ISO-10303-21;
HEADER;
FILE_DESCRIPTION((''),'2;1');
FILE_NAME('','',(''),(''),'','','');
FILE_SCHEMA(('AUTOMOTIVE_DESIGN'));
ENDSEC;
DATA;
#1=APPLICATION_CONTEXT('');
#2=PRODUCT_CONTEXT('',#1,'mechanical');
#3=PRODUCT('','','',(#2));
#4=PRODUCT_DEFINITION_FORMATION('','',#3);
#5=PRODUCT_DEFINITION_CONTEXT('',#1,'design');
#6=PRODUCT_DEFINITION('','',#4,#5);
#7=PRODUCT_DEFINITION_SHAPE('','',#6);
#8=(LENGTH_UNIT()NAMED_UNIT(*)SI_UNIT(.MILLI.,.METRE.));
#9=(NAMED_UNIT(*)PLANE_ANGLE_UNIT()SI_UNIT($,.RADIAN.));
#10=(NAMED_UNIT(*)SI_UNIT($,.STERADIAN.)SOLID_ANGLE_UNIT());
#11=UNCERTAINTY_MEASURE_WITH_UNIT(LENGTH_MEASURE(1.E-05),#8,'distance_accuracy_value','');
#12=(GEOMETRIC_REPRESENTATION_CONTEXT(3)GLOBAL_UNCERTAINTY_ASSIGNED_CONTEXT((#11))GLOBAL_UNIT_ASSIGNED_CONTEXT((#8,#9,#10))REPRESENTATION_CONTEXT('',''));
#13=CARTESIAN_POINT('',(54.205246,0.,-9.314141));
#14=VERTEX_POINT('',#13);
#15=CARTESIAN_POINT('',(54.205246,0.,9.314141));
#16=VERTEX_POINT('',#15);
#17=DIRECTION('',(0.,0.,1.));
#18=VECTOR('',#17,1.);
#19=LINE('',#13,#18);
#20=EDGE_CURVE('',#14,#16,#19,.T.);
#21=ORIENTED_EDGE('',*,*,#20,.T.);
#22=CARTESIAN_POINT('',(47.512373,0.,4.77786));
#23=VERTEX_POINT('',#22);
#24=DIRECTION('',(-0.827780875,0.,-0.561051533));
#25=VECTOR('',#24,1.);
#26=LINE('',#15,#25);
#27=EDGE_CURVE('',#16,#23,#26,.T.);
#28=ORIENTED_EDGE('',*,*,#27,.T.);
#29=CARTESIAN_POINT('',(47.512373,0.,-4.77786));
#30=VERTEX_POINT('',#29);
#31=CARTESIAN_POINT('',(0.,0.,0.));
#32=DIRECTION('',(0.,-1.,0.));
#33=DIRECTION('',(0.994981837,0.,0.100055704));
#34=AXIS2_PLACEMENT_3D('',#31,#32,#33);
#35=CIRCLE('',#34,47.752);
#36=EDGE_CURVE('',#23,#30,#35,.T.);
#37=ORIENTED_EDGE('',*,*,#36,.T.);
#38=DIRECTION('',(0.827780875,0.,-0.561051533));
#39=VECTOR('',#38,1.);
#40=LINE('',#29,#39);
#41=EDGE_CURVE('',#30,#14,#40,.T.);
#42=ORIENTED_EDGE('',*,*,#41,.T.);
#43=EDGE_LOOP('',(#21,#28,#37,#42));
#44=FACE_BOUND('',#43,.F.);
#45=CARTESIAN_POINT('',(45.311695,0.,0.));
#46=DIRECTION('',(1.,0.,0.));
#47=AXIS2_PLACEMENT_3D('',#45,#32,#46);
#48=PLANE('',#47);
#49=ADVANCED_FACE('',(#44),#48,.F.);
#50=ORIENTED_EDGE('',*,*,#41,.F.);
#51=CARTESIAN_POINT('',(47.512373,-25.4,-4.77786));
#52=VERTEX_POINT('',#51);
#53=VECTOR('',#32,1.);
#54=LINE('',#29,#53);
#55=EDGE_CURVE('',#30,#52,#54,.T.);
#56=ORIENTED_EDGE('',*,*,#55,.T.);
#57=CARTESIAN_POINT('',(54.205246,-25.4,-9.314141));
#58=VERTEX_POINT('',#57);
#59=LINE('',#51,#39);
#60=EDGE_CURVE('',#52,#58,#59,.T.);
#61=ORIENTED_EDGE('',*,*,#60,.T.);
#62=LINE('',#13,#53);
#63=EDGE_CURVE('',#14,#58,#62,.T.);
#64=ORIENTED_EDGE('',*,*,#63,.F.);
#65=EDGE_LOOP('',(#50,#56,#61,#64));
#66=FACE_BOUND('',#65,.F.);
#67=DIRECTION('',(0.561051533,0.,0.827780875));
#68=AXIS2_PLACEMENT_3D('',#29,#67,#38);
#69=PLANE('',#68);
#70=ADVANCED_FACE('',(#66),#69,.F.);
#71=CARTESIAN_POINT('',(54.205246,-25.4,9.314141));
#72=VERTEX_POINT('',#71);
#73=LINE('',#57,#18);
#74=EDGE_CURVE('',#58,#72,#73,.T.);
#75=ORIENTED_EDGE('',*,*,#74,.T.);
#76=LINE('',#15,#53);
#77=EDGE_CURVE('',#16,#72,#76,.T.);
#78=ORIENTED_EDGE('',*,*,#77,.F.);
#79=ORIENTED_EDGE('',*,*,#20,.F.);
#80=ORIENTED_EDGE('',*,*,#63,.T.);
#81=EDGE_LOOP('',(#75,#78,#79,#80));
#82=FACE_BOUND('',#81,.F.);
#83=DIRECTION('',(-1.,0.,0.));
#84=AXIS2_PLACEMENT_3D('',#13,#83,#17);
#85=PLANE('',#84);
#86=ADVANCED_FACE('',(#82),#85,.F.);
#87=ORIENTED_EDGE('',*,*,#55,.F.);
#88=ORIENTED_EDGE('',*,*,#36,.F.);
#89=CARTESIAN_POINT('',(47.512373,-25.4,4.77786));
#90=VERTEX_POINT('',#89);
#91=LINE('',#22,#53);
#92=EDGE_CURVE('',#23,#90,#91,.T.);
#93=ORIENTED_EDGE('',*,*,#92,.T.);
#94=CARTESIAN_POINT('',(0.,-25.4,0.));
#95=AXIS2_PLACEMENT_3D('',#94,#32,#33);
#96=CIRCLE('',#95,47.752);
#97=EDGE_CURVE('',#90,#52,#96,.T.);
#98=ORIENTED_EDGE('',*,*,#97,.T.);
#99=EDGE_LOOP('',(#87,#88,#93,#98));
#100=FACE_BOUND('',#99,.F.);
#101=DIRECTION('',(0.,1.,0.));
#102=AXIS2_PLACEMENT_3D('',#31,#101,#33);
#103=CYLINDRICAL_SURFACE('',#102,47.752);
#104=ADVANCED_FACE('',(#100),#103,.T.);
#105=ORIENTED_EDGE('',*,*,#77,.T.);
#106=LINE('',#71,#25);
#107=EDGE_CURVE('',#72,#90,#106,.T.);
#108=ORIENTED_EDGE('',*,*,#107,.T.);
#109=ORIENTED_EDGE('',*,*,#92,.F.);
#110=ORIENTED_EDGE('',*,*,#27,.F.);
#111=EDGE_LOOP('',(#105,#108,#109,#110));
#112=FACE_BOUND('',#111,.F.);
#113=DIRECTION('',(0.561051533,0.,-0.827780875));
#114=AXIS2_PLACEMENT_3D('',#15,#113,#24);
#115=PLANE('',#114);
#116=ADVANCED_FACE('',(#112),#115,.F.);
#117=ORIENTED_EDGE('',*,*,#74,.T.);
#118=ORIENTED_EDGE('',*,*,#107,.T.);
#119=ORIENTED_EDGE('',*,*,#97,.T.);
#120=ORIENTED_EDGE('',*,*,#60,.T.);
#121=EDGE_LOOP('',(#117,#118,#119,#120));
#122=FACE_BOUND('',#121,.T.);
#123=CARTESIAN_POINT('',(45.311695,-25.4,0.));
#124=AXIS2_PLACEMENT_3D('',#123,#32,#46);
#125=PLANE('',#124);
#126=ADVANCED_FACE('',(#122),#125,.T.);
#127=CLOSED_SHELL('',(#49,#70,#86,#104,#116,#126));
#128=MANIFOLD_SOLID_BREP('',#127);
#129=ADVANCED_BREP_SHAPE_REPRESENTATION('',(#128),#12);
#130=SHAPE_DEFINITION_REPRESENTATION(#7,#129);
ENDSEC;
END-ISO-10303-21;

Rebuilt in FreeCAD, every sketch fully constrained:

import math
import FreeCAD as App
import Part
import Sketcher
from FreeCAD import Vector
Q = App.Units.Quantity

doc = App.newDocument("Part")
body = doc.addObject("PartDesign::Body", "Body")

# Sketch on XZ plane
sketch1 = body.newObject("Sketcher::SketchObject", "Sketch")
sketch1.AttachmentSupport = (doc.getObject("XZ_Plane"), [""])
sketch1.MapMode = "FlatFace"
sketch1.addGeometry([
    Part.ArcOfCircle(Part.Circle(Vector(0, 0, 0), Vector(0, 0, 1), 48), math.radians(6), math.radians(354)),
    Part.LineSegment(Vector(48, -5, 0), Vector(54, -9, 0)),
    Part.LineSegment(Vector(54, -9, 0), Vector(54, 9, 0)),
    Part.LineSegment(Vector(54, 9, 0), Vector(48, 5, 0)),
], False)
sketch1.addConstraint([
    Sketcher.Constraint("Coincident", 0, 2, 1, 1),
    Sketcher.Constraint("Coincident", 1, 2, 2, 1),
    Sketcher.Constraint("Coincident", 2, 2, 3, 1),
    Sketcher.Constraint("Coincident", 3, 2, 0, 1),
    Sketcher.Constraint("Vertical", 2),
    Sketcher.Constraint("Coincident", 0, 3, -1, 1),
    Sketcher.Constraint("Vertical", 0, 2, 3, 2),
    Sketcher.Constraint("Equal", 1, 3),
    Sketcher.Constraint("Radius", 0, Q("1.88 in")),
    Sketcher.Constraint("DistanceY", 2, 1, 2, 2, Q("18.628282 mm")),
    Sketcher.Constraint("DistanceY", 0, 2, 2, 2, Q("14.092001 mm")),
    Sketcher.Constraint("Distance", 1, Q("8.08532 mm")),
])
pad1 = body.newObject("PartDesign::Pad", "Pad")
pad1.Profile = sketch1
pad1.Length = Q("1 in")

doc.recompute()
